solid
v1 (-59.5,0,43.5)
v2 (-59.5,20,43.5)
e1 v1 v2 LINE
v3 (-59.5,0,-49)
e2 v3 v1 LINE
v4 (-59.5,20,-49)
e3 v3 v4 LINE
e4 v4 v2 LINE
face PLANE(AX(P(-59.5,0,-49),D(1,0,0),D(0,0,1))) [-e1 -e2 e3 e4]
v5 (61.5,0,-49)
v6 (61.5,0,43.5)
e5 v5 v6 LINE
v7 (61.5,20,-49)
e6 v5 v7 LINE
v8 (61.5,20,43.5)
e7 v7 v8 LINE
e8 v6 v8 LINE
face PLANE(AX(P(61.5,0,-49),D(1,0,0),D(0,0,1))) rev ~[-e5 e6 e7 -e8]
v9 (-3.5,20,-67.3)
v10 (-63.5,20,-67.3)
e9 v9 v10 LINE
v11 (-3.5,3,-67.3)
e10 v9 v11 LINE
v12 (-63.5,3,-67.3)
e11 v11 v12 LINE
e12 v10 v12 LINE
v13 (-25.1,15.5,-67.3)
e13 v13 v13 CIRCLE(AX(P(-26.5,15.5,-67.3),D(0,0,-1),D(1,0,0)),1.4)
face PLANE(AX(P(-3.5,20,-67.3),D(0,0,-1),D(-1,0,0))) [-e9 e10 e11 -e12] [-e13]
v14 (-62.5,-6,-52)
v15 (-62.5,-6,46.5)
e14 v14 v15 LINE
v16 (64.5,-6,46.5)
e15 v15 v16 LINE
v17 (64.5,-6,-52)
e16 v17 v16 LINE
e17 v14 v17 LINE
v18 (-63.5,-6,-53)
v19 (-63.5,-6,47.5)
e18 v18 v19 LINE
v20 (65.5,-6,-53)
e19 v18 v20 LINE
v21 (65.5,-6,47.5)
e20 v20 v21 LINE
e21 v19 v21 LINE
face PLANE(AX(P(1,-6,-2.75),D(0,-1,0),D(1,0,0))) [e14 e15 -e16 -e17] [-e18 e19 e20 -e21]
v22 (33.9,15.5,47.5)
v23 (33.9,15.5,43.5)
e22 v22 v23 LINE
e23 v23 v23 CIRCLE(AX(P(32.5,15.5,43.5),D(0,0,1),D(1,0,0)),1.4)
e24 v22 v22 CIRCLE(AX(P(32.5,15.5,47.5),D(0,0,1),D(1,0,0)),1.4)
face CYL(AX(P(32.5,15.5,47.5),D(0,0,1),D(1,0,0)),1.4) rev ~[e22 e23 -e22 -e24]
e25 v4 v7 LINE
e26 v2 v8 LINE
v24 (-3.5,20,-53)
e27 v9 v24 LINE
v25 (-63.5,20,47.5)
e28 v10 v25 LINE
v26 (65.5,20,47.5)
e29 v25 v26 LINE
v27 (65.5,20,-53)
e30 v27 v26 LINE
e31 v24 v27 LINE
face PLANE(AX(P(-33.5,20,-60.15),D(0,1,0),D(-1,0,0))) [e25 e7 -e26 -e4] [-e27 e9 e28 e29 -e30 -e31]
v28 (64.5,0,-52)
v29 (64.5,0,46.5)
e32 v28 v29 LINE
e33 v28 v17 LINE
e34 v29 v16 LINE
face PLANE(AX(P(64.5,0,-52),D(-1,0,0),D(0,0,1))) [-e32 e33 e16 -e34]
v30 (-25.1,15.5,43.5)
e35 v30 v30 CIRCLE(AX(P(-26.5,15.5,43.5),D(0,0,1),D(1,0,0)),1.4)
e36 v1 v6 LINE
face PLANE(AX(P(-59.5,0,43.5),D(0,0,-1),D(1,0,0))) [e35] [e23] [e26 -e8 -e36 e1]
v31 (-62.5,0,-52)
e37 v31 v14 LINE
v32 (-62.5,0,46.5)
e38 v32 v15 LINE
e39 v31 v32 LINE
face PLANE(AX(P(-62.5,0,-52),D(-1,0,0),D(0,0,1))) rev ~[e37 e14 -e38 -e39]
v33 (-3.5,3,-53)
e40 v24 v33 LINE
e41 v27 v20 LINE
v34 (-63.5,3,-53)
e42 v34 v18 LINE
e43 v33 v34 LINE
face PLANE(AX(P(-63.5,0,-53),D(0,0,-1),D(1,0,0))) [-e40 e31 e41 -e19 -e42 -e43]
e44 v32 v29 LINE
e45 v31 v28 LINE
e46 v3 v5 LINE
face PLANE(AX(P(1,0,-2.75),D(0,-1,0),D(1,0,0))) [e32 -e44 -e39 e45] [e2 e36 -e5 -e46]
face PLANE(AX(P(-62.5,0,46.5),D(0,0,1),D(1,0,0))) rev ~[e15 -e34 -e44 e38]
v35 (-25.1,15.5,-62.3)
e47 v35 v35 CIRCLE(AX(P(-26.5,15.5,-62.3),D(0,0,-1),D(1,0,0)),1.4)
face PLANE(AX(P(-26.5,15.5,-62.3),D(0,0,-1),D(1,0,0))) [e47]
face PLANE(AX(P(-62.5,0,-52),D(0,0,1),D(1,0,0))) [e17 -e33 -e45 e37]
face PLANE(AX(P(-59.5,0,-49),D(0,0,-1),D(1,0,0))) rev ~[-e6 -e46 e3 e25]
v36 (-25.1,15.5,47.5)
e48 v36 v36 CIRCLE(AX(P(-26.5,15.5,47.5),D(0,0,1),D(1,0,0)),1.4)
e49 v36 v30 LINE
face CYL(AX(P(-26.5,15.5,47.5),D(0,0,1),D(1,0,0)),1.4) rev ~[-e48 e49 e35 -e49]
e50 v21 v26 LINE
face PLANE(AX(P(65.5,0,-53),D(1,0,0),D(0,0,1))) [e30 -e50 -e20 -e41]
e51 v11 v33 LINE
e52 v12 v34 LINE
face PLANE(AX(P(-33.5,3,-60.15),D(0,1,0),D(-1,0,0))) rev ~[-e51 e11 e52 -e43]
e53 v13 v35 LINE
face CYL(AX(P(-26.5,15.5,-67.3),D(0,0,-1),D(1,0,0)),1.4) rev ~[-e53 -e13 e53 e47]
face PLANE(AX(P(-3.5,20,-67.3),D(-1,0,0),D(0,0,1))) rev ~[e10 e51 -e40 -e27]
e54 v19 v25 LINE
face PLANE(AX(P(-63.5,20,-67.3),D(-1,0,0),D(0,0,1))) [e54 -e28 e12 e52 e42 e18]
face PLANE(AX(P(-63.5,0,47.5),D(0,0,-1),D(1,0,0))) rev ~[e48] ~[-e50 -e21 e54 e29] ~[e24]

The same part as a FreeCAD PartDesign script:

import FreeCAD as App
import Part
import Sketcher
Q = App.Units.Quantity


def add_polygon(sketch, points):
    """Adds a closed chain of lines whose ends are joined by coincident constraints."""
    first, n = sketch.GeometryCount, len(points)
    for a, b in zip(points, points[1:] + points[:1]):
        sketch.addGeometry(Part.LineSegment(App.Vector(*a, 0), App.Vector(*b, 0)), False)
    for i in range(n):
        sketch.addConstraint(Sketcher.Constraint("Coincident", first + i, 2, first + (i + 1) % n, 1))

doc = App.newDocument("Part")
body = doc.addObject("PartDesign::Body", "Body")

sketch1 = body.newObject("Sketcher::SketchObject", "Sketch")
sketch1.AttachmentSupport = (doc.getObject("XZ_Plane"), [""])
sketch1.MapMode = "FlatFace"
add_polygon(sketch1, [(-64, 48), (-64, -53), (66, -53), (66, 48)])
add_polygon(sketch1, [(64, -52), (-62, -52), (-62, 46), (64, 46)])
sketch1.addConstraint([
    Sketcher.Constraint("Vertical", 0),
    Sketcher.Constraint("Horizontal", 1),
    Sketcher.Constraint("Vertical", 2),
    Sketcher.Constraint("Horizontal", 3),
    Sketcher.Constraint("Horizontal", 4),
    Sketcher.Constraint("Vertical", 5),
    Sketcher.Constraint("Horizontal", 6),
    Sketcher.Constraint("Vertical", 7),
    Sketcher.Constraint("DistanceX", 1, 1, 1, 2, Q("129 mm")),
    Sketcher.Constraint("DistanceX", 4, 2, 4, 1, Q("127 mm")),
    Sketcher.Constraint("DistanceY", 0, 2, 0, 1, Q("100.5 mm")),
    Sketcher.Constraint("DistanceY", 5, 1, 5, 2, Q("98.5 mm")),
    Sketcher.Constraint("DistanceY", 0, 2, -1, 1, Q("53 mm")),
    Sketcher.Constraint("DistanceY", 4, 2, -1, 1, Q("52 mm")),
    Sketcher.Constraint("DistanceX", 0, 2, 4, 2, Q("1 mm")),
    Sketcher.Constraint("DistanceX", 0, 2, -1, 1, Q("63.5 mm")),
])
pad1 = body.newObject("PartDesign::Pad", "Pad")
pad1.Profile = sketch1
pad1.Length = 6

sketch2 = body.newObject("Sketcher::SketchObject", "Sketch001")
sketch2.AttachmentSupport = (doc.getObject("XZ_Plane"), [""])
sketch2.MapMode = "FlatFace"
add_polygon(sketch2, [(-64, 48), (-64, -53), (66, -53), (66, 48)])
add_polygon(sketch2, [(62, -49), (-60, -49), (-60, 44), (62, 44)])
sketch2.addConstraint([
    Sketcher.Constraint("Vertical", 0),
    Sketcher.Constraint("Horizontal", 1),
    Sketcher.Constraint("Vertical", 2),
    Sketcher.Constraint("Horizontal", 3),
    Sketcher.Constraint("Horizontal", 4),
    Sketcher.Constraint("Vertical", 5),
    Sketcher.Constraint("Horizontal", 6),
    Sketcher.Constraint("Vertical", 7),
    Sketcher.Constraint("DistanceX", 1, 1, 1, 2, Q("129 mm")),
    Sketcher.Constraint("DistanceX", 4, 2, 4, 1, Q("121 mm")),
    Sketcher.Constraint("DistanceY", 0, 2, 0, 1, Q("100.5 mm")),
    Sketcher.Constraint("DistanceY", 5, 1, 5, 2, Q("92.5 mm")),
    Sketcher.Constraint("DistanceY", 0, 2, -1, 1, Q("53 mm")),
    Sketcher.Constraint("DistanceY", 4, 2, -1, 1, Q("49 mm")),
    Sketcher.Constraint("DistanceX", 0, 2, 4, 2, Q("4 mm")),
    Sketcher.Constraint("DistanceX", 0, 2, -1, 1, Q("63.5 mm")),
])
pad2 = body.newObject("PartDesign::Pad", "Pad001")
pad2.Profile = sketch2
pad2.Length = 20
pad2.Reversed = True

sketch3 = body.newObject("Sketcher::SketchObject", "Sketch002")
sketch3.AttachmentSupport = (doc.getObject("XZ_Plane"), [""])
sketch3.MapMode = "FlatFace"
sketch3.AttachmentOffset = App.Placement(App.Vector(0, 0, -20), App.Rotation())
add_polygon(sketch3, [(-4, -53), (-4, -67), (-64, -67), (-64, -53)])
sketch3.addConstraint([
    Sketcher.Constraint("Vertical", 0),
    Sketcher.Constraint("Horizontal", 1),
    Sketcher.Constraint("Vertical", 2),
    Sketcher.Constraint("Horizontal", 3),
    Sketcher.Constraint("DistanceX", 1, 2, 1, 1, Q("60 mm")),
    Sketcher.Constraint("DistanceY", 0, 2, 0, 1, Q("14.3 mm")),
    Sketcher.Constraint("DistanceY", 2, 2, -1, 1, Q("53 mm")),
    Sketcher.Constraint("DistanceX", 0, 2, -1, 1, Q("3.5 mm")),
])
pad3 = body.newObject("PartDesign::Pad", "Pad002")
pad3.Profile = sketch3
pad3.Length = 17

sketch4 = body.newObject("Sketcher::SketchObject", "Sketch003")
sketch4.AttachmentSupport = (doc.getObject("XY_Plane"), [""])
sketch4.MapMode = "FlatFace"
sketch4.AttachmentOffset = App.Placement(App.Vector(0, 0, 47.5), App.Rotation())
sketch4.addGeometry([
    Part.Circle(App.Vector(-26.5, 15.5, 0), App.Vector(0, 0, 1), 1.4),
    Part.Circle(App.Vector(32.5, 15.5, 0), App.Vector(0, 0, 1), 1.4),
], False)
sketch4.addConstraint([
    Sketcher.Constraint("Equal", 0, 1),
    Sketcher.Constraint("Horizontal", 0, 3, 1, 3),
    Sketcher.Constraint("Diameter", 0, Q("2.8 mm")),
    Sketcher.Constraint("DistanceX", 0, 3, 1, 3, Q("59 mm")),
    Sketcher.Constraint("DistanceX", 0, 3, -1, 1, Q("26.5 mm")),
    Sketcher.Constraint("DistanceY", -1, 1, 0, 3, Q("15.5 mm")),
])
pocket1 = body.newObject("PartDesign::Pocket", "Pocket")
pocket1.Profile = sketch4
pocket1.Length = 7.9

sketch5 = body.newObject("Sketcher::SketchObject", "Sketch004")
sketch5.AttachmentSupport = (doc.getObject("XY_Plane"), [""])
sketch5.MapMode = "FlatFace"
sketch5.AttachmentOffset = App.Placement(App.Vector(0, 0, -67.3), App.Rotation())
sketch5.addGeometry(Part.Circle(App.Vector(-26.5, 15.5, 0), App.Vector(0, 0, 1), 1.4), False)
sketch5.addConstraint([
    Sketcher.Constraint("Diameter", 0, Q("2.8 mm")),
    Sketcher.Constraint("DistanceX", 0, 3, -1, 1, Q("26.5 mm")),
    Sketcher.Constraint("DistanceY", -1, 1, 0, 3, Q("15.5 mm")),
])
pocket2 = body.newObject("PartDesign::Pocket", "Pocket001")
pocket2.Profile = sketch5
pocket2.Length = 5
pocket2.Reversed = True

doc.recompute()
